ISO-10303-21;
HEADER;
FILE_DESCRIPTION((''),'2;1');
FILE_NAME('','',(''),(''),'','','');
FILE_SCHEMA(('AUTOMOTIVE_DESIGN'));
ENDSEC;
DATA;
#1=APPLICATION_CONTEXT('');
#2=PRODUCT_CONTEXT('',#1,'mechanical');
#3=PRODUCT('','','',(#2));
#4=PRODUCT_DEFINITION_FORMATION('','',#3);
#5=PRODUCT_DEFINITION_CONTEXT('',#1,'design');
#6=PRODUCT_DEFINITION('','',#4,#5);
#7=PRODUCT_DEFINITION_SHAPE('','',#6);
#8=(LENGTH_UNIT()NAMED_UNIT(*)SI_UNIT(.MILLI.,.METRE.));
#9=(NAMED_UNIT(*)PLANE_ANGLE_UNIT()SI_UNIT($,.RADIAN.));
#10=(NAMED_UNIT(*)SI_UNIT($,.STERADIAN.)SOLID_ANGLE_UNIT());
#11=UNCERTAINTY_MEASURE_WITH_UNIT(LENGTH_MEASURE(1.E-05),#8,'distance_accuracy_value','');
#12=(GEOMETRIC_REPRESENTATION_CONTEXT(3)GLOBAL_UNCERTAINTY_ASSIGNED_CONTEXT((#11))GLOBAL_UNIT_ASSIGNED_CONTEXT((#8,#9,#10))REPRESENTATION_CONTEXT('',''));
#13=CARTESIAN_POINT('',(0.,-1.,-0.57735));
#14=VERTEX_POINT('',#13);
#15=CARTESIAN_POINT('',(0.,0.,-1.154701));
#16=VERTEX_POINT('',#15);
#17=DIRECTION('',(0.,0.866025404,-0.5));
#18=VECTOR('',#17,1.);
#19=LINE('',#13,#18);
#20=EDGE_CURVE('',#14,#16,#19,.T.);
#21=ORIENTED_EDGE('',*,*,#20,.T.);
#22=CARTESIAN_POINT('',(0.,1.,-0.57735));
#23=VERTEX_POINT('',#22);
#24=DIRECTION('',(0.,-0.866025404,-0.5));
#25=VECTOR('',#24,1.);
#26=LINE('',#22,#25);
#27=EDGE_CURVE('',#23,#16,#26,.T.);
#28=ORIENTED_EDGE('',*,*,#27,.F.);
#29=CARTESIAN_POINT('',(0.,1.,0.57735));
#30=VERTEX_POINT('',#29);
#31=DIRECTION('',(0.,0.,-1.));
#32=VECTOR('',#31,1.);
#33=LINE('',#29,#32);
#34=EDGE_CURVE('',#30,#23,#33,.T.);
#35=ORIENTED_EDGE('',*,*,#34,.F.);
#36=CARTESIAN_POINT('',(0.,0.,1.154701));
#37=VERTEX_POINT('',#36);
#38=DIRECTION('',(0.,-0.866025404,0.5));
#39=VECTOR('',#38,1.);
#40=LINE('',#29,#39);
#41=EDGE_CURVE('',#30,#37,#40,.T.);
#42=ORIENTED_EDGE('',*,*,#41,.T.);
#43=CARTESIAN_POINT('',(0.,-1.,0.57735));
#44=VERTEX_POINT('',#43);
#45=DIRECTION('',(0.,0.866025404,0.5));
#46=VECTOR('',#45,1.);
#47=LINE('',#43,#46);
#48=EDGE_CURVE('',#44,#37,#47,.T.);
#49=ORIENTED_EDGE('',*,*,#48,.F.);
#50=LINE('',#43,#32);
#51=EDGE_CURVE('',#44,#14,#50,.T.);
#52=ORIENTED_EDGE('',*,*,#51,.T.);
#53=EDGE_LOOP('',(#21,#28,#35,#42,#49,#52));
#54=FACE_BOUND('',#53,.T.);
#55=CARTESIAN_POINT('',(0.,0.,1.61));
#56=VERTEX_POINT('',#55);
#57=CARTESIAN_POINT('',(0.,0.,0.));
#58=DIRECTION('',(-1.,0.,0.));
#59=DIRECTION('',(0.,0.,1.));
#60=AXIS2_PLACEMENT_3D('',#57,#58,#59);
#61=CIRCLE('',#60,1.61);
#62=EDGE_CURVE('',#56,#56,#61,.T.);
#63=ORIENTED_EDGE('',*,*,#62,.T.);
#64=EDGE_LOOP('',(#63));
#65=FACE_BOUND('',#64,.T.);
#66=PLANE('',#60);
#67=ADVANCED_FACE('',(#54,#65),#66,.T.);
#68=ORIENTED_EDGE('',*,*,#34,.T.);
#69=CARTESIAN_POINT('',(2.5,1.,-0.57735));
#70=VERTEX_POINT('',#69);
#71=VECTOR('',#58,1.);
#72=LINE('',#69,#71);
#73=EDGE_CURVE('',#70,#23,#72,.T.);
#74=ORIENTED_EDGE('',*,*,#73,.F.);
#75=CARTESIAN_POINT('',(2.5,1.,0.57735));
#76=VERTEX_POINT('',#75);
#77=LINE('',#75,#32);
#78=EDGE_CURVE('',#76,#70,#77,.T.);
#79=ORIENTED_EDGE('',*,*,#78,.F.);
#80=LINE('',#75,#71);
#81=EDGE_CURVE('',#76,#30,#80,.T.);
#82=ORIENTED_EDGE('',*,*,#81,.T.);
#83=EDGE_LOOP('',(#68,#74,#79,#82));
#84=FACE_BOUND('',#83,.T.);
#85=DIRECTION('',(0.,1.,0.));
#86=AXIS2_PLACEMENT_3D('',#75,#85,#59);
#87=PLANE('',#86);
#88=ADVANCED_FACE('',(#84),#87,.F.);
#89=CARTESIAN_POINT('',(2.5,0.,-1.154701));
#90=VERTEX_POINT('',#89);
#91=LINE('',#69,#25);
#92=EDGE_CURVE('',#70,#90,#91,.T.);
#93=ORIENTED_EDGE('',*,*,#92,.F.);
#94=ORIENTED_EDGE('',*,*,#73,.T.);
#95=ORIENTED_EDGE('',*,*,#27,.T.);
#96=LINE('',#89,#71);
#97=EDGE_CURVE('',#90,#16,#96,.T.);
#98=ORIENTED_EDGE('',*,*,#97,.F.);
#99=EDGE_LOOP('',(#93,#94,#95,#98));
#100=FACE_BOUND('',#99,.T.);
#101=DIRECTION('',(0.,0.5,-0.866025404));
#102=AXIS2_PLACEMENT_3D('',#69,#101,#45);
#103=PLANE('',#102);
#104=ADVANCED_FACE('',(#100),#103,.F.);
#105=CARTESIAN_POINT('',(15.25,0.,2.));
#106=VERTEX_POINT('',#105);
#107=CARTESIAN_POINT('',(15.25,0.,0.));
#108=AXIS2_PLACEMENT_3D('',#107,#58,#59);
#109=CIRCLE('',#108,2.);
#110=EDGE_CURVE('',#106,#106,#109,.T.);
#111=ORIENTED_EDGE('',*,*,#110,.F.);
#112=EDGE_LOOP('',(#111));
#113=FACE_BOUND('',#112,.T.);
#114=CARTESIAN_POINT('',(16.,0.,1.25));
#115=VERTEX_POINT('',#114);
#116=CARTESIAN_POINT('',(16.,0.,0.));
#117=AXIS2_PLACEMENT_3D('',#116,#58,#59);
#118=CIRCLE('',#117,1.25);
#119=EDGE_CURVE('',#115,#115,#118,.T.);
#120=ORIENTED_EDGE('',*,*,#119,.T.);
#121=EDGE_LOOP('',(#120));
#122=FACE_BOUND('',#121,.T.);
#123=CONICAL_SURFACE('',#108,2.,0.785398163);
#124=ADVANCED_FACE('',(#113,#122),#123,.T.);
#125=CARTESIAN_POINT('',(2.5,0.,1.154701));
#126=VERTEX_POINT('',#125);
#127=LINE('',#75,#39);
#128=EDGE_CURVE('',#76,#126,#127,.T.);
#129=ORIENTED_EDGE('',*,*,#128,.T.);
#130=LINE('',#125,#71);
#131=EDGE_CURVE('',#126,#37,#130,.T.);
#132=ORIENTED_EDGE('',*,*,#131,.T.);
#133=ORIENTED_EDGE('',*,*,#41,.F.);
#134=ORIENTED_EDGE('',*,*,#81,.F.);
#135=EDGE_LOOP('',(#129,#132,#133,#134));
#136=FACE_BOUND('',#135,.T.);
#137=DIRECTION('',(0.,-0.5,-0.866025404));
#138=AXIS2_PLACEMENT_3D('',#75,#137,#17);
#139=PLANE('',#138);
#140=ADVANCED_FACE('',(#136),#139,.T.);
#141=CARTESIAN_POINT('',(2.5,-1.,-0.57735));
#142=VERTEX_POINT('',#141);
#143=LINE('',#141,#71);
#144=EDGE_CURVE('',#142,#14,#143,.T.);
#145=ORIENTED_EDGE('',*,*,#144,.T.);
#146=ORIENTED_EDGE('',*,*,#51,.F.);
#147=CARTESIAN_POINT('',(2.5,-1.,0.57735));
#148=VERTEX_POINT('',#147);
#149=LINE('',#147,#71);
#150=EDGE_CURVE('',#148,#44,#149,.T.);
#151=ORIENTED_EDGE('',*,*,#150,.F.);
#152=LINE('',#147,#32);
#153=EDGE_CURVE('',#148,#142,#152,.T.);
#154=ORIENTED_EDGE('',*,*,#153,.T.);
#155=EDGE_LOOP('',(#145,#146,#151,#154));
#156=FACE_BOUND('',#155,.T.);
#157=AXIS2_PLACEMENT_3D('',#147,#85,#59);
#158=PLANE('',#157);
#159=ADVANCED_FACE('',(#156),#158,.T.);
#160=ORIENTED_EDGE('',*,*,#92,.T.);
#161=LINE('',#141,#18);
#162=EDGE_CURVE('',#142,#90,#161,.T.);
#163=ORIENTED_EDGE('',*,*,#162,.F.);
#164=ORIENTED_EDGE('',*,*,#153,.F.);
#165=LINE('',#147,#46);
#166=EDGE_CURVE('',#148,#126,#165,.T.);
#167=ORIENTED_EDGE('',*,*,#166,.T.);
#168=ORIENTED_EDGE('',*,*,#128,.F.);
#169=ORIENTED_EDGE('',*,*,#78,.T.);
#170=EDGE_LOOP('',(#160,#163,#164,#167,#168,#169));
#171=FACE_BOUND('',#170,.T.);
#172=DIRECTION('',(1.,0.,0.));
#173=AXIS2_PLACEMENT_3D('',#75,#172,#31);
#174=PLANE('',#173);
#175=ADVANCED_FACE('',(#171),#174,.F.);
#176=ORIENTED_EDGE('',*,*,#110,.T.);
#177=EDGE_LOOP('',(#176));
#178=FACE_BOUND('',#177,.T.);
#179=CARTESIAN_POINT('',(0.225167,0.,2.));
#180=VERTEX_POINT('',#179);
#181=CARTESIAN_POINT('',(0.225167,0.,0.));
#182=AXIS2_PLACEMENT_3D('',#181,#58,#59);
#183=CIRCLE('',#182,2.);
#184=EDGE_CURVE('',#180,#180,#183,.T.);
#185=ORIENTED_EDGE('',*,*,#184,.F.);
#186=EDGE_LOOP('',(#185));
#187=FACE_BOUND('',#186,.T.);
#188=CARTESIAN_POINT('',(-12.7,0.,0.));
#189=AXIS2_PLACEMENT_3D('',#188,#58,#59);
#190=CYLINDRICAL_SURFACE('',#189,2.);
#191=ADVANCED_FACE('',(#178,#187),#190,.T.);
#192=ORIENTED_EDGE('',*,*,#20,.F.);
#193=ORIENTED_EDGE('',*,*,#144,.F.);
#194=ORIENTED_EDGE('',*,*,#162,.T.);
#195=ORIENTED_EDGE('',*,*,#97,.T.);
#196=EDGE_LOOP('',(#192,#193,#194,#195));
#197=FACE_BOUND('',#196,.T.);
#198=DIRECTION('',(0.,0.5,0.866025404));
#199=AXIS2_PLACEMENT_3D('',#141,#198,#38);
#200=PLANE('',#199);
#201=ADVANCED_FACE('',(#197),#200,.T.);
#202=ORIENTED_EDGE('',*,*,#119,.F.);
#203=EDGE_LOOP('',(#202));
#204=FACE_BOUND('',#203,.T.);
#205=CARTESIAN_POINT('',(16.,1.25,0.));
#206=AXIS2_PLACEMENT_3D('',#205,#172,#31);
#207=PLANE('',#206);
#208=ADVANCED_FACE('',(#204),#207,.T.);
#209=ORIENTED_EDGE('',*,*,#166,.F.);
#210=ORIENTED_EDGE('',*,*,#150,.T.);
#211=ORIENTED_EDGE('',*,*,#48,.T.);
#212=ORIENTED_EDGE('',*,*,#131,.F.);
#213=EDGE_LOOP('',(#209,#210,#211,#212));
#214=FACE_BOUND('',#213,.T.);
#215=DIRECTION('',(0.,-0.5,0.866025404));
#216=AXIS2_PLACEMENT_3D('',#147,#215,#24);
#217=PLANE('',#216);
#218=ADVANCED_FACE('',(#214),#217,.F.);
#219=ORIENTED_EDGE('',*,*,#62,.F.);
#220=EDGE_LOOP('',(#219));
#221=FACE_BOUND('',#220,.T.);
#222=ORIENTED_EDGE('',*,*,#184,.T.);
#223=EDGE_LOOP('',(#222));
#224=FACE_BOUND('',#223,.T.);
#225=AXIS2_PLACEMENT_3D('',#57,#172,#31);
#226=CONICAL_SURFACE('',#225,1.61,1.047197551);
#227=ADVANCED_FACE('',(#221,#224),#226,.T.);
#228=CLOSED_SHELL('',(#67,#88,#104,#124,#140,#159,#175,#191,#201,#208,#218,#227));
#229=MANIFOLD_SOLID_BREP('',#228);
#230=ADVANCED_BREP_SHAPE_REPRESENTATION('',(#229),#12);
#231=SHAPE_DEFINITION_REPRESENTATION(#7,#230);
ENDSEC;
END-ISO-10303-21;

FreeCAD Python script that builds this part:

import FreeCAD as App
import Part
import Sketcher
Q = App.Units.Quantity

doc = App.newDocument("Part")
body = doc.addObject("PartDesign::Body", "Body")

sketch1 = doc.addObject("Sketcher::SketchObject", "Sketch")
body.addObject(sketch1)
sketch1.AttachmentSupport = (doc.XY_Plane, [""])
sketch1.MapMode = "FlatFace"
sketch1.addGeometry([
    Part.LineSegment(App.Vector(0, 1.61, 0), App.Vector(0, 0, 0)),
    Part.LineSegment(App.Vector(0, 0, 0), App.Vector(16, 0, 0)),
    Part.LineSegment(App.Vector(16, 0, 0), App.Vector(16, 1.25, 0)),
    Part.LineSegment(App.Vector(16, 1.25, 0), App.Vector(15.25, 2, 0)),
    Part.LineSegment(App.Vector(15.25, 2, 0), App.Vector(0.225167, 2, 0)),
    Part.LineSegment(App.Vector(0.225167, 2, 0), App.Vector(0, 1.61, 0)),
], False)
sketch1.addConstraint([
    Sketcher.Constraint("Coincident", 0, 2, 1, 1),
    Sketcher.Constraint("Coincident", 1, 2, 2, 1),
    Sketcher.Constraint("Coincident", 2, 2, 3, 1),
    Sketcher.Constraint("Coincident", 3, 2, 4, 1),
    Sketcher.Constraint("Coincident", 4, 2, 5, 1),
    Sketcher.Constraint("Coincident", 5, 2, 0, 1),
    Sketcher.Constraint("Vertical", 0),
    Sketcher.Constraint("Horizontal", 1),
    Sketcher.Constraint("Vertical", 2),
    Sketcher.Constraint("Horizontal", 4),
    Sketcher.Constraint("Coincident", 0, 2, -1, 1),
    Sketcher.Constraint("DistanceX", 1, 1, 1, 2, Q("16 mm")),
    Sketcher.Constraint("Angle", 3, Q("135 deg")),
    Sketcher.Constraint("Angle", 5, Q("-120 deg")),
    Sketcher.Constraint("DistanceY", -1, 1, 3, 2, Q("2 mm")),
    Sketcher.Constraint("DistanceY", 0, 2, 0, 1, Q("1.61 mm")),
    Sketcher.Constraint("DistanceY", 2, 1, 2, 2, Q("1.25 mm")),
])
revolution = doc.addObject("PartDesign::Revolution", "Revolution")
body.addObject(revolution)
revolution.Profile = sketch1
revolution.ReferenceAxis = (sketch1, ["H_Axis"])
revolution.Angle = 360

sketch2 = doc.addObject("Sketcher::SketchObject", "Sketch001")
body.addObject(sketch2)
sketch2.AttachmentSupport = (doc.YZ_Plane, [""])
sketch2.MapMode = "FlatFace"
sketch2.addGeometry([
    Part.LineSegment(App.Vector(1, 0.57735, 0), App.Vector(1, -0.57735, 0)),
    Part.LineSegment(App.Vector(1, -0.57735, 0), App.Vector(0, -1.154701, 0)),
    Part.LineSegment(App.Vector(0, -1.154701, 0), App.Vector(-1, -0.57735, 0)),
    Part.LineSegment(App.Vector(-1, -0.57735, 0), App.Vector(-1, 0.57735, 0)),
    Part.LineSegment(App.Vector(-1, 0.57735, 0), App.Vector(0, 1.154701, 0)),
    Part.LineSegment(App.Vector(0, 1.154701, 0), App.Vector(1, 0.57735, 0)),
], False)
sketch2.addConstraint([
    Sketcher.Constraint("Coincident", 0, 2, 1, 1),
    Sketcher.Constraint("Coincident", 1, 2, 2, 1),
    Sketcher.Constraint("Coincident", 2, 2, 3, 1),
    Sketcher.Constraint("Coincident", 3, 2, 4, 1),
    Sketcher.Constraint("Coincident", 4, 2, 5, 1),
    Sketcher.Constraint("Coincident", 5, 2, 0, 1),
    Sketcher.Constraint("Vertical", 0),
    Sketcher.Constraint("Vertical", 3),
    Sketcher.Constraint("Symmetric", 0, 2, 3, 2, -1, 1),
    Sketcher.Constraint("Symmetric", 1, 2, 4, 2, -1, 1),
    Sketcher.Constraint("PointOnObject", 1, 2, -2),
    Sketcher.Constraint("Parallel", 2, 5),
    Sketcher.Constraint("Horizontal", 0, 2, 2, 2),
    Sketcher.Constraint("Angle", 1, Q("-150 deg")),
    Sketcher.Constraint("DistanceX", -1, 1, 0, 2, Q("1 mm")),
    Sketcher.Constraint("DistanceY", 0, 2, 0, 1, Q("1.154701 mm")),
])
pocket1 = doc.addObject("PartDesign::Pocket", "Pocket")
body.addObject(pocket1)
pocket1.Profile = sketch2
pocket1.Length = 2.5
pocket1.Reversed = True

doc.recompute()
